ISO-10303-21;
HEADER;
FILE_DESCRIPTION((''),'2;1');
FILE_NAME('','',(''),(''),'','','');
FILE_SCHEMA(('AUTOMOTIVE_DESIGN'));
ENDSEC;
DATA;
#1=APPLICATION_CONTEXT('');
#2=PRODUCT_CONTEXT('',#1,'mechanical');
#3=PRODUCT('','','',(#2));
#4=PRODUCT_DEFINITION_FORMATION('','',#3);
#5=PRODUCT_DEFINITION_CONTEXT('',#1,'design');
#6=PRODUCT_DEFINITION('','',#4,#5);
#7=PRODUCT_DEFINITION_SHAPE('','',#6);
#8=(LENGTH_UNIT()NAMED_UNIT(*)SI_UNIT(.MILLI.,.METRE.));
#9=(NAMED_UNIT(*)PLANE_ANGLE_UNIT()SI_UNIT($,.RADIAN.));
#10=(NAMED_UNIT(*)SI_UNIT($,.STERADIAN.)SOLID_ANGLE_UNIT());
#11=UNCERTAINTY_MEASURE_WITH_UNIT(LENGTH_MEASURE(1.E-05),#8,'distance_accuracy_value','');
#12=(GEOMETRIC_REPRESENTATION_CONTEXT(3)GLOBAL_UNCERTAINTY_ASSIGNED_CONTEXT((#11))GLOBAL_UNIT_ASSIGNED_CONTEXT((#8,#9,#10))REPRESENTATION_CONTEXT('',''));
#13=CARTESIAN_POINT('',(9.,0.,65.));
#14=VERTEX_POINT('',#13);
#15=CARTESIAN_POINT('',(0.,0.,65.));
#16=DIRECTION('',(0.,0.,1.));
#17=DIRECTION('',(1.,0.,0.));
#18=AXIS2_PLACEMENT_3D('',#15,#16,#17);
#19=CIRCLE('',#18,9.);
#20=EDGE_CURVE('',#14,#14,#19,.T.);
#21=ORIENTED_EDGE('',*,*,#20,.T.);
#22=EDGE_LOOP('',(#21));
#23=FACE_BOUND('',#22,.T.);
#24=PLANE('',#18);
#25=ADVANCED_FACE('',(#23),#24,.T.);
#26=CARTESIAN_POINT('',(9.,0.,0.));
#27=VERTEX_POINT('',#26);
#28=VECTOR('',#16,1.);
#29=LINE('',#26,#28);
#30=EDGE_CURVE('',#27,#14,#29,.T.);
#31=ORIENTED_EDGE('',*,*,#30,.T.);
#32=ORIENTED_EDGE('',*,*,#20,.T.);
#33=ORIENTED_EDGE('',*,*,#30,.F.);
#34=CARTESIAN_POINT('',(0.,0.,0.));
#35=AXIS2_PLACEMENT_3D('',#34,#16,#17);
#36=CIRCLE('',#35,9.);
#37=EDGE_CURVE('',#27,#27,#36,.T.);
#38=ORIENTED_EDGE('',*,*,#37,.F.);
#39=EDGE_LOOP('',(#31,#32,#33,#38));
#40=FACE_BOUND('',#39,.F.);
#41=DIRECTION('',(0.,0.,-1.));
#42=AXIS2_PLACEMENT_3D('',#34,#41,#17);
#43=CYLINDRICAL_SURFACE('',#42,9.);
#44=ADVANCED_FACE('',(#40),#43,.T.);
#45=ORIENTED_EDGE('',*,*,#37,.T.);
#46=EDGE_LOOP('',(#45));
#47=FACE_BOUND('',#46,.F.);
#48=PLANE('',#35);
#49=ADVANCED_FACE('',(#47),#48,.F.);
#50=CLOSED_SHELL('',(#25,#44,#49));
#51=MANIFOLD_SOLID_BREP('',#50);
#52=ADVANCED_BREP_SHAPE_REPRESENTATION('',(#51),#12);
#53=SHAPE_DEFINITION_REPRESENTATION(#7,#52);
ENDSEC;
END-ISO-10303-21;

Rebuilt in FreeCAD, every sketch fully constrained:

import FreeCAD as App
import Part
import Sketcher

V = App.Vector

doc = App.newDocument("Part")
params = doc.addObject("Spreadsheet::Sheet", "Params")
for row, (alias, value) in enumerate([
    ("sketch1_diameter", "18 mm"),
    ("pad1_length", "65 mm"),
], start=1):
    params.set(f"A{row}", alias)
    params.set(f"B{row}", "=" + value)
    params.setAlias(f"B{row}", alias)

body = doc.addObject("PartDesign::Body", "Body")

sketch1 = body.newObject("Sketcher::SketchObject", "Sketch")
sketch1.AttachmentSupport = (doc.getObject("XY_Plane"), [""])
sketch1.MapMode = "FlatFace"
sketch1.addGeometry(Part.Circle(V(0, 0, 0), V(0, 0, 1), 9), False)
sketch1.addConstraint([
    Sketcher.Constraint("Coincident", 0, 3, -1, 1),
    Sketcher.Constraint("Diameter", 0, 18.0),
])
sketch1.setExpression("Constraints[1]", "Params.sketch1_diameter")
pad1 = body.newObject("PartDesign::Pad", "Pad")
pad1.Profile = sketch1
pad1.setExpression("Length", "Params.pad1_length")

doc.recompute()
